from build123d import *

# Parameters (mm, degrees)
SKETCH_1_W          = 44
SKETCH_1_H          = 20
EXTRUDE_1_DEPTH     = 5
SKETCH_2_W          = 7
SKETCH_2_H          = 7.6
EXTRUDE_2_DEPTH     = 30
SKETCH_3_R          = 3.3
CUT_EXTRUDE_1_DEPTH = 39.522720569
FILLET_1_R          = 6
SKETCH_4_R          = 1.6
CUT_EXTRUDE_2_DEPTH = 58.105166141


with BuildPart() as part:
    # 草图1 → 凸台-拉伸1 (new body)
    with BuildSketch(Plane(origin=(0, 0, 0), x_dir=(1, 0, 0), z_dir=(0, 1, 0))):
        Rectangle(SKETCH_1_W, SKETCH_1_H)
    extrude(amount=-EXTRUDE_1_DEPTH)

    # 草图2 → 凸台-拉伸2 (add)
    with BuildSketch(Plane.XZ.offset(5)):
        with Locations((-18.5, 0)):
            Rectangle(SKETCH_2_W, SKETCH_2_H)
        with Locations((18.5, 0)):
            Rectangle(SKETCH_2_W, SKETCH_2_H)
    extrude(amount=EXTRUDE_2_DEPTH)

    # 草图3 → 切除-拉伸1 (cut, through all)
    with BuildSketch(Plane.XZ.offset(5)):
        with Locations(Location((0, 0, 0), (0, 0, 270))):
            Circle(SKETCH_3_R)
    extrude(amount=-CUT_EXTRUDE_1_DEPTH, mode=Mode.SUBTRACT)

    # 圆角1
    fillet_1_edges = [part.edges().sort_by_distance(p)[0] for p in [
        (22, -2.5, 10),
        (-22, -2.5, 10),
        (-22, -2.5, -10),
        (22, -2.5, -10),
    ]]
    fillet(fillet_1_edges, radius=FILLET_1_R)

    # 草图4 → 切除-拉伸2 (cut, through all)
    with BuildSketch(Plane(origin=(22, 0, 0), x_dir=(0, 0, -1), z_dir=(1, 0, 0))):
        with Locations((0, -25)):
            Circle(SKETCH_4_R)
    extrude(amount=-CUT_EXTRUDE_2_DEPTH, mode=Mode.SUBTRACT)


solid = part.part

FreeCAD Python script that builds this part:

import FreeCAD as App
import Part
import Sketcher
from FreeCAD import Vector


def edges_at(feature, points):
    """Names of the edges that pass closest to the given points."""
    edges = feature.Shape.Edges
    near = lambda p: min(range(len(edges)), key=lambda i: edges[i].distToShape(Part.Vertex(*p))[0])
    return sorted({f"Edge{near(p) + 1}" for p in points})

doc = App.newDocument("Part")
body = doc.addObject("PartDesign::Body", "Body")

sketch1 = body.newObject("Sketcher::SketchObject", "Sketch")
sketch1.AttachmentSupport = (doc.getObject("XZ_Plane"), [""])
sketch1.MapMode = "FlatFace"
sketch1.addGeometry([
    Part.LineSegment(Vector(-22, -10, 0), Vector(-22, 10, 0)),
    Part.LineSegment(Vector(-22, 10, 0), Vector(22, 10, 0)),
    Part.LineSegment(Vector(22, 10, 0), Vector(22, -10, 0)),
    Part.LineSegment(Vector(22, -10, 0), Vector(-22, -10, 0)),
], False)
sketch1.addConstraint([
    Sketcher.Constraint("Coincident", 0, 2, 1, 1),
    Sketcher.Constraint("Coincident", 1, 2, 2, 1),
    Sketcher.Constraint("Coincident", 2, 2, 3, 1),
    Sketcher.Constraint("Coincident", 3, 2, 0, 1),
    Sketcher.Constraint("Vertical", 0),
    Sketcher.Constraint("Horizontal", 1),
    Sketcher.Constraint("Vertical", 2),
    Sketcher.Constraint("Horizontal", 3),
    Sketcher.Constraint("Symmetric", 0, 2, 2, 2, -1, 1),
    Sketcher.Constraint("DistanceX", 1, 1, 1, 2, 44.0),
    Sketcher.Constraint("DistanceY", 0, 1, 0, 2, 20.0),
])
pad1 = body.newObject("PartDesign::Pad", "Pad")
pad1.Profile = sketch1
pad1.Length = 5

sketch2 = body.newObject("Sketcher::SketchObject", "Sketch001")
sketch2.AttachmentSupport = (doc.getObject("XZ_Plane"), [""])
sketch2.MapMode = "FlatFace"
sketch2.AttachmentOffset = App.Placement(Vector(0, 0, 5), App.Rotation())
sketch2.addGeometry([
    Part.LineSegment(Vector(-22, 4, 0), Vector(-22, -4, 0)),
    Part.LineSegment(Vector(-22, -4, 0), Vector(-15, -4, 0)),
    Part.LineSegment(Vector(-15, -4, 0), Vector(-15, 4, 0)),
    Part.LineSegment(Vector(-15, 4, 0), Vector(-22, 4, 0)),
    Part.LineSegment(Vector(15, 4, 0), Vector(15, -4, 0)),
    Part.LineSegment(Vector(15, -4, 0), Vector(22, -4, 0)),
    Part.LineSegment(Vector(22, -4, 0), Vector(22, 4, 0)),
    Part.LineSegment(Vector(22, 4, 0), Vector(15, 4, 0)),
], False)
sketch2.addConstraint([
    Sketcher.Constraint("Coincident", 0, 2, 1, 1),
    Sketcher.Constraint("Coincident", 1, 2, 2, 1),
    Sketcher.Constraint("Coincident", 2, 2, 3, 1),
    Sketcher.Constraint("Coincident", 3, 2, 0, 1),
    Sketcher.Constraint("Coincident", 4, 2, 5, 1),
    Sketcher.Constraint("Coincident", 5, 2, 6, 1),
    Sketcher.Constraint("Coincident", 6, 2, 7, 1),
    Sketcher.Constraint("Coincident", 7, 2, 4, 1),
    Sketcher.Constraint("Vertical", 0),
    Sketcher.Constraint("Horizontal", 1),
    Sketcher.Constraint("Vertical", 2),
    Sketcher.Constraint("Horizontal", 3),
    Sketcher.Constraint("Vertical", 4),
    Sketcher.Constraint("Horizontal", 5),
    Sketcher.Constraint("Vertical", 6),
    Sketcher.Constraint("Horizontal", 7),
    Sketcher.Constraint("Symmetric", 2, 2, 4, 2, -1, 1),
    Sketcher.Constraint("Symmetric", 0, 2, 6, 2, -1, 1),
    Sketcher.Constraint("Horizontal", 1, 2, 4, 2),
    Sketcher.Constraint("DistanceX", 1, 1, 1, 2, 7.0),
    Sketcher.Constraint("DistanceY", 0, 2, 0, 1, 7.6),
    Sketcher.Constraint("DistanceX", 0, 2, -1, 1, 22.0),
])
pad2 = body.newObject("PartDesign::Pad", "Pad001")
pad2.Profile = sketch2
pad2.Length = 30

sketch3 = body.newObject("Sketcher::SketchObject", "Sketch002")
sketch3.AttachmentSupport = (doc.getObject("XZ_Plane"), [""])
sketch3.MapMode = "FlatFace"
sketch3.AttachmentOffset = App.Placement(Vector(0, 0, 5), App.Rotation())
sketch3.addGeometry(Part.Circle(Vector(0, 0, 0), Vector(0, 0, 1), 3.3), False)
sketch3.addConstraint([
    Sketcher.Constraint("Coincident", 0, 3, -1, 1),
    Sketcher.Constraint("Diameter", 0, 6.6),
])
pocket1 = body.newObject("PartDesign::Pocket", "Pocket")
pocket1.Profile = sketch3
pocket1.Type = "ThroughAll"
doc.recompute()

fillet = body.newObject("PartDesign::Fillet", "Fillet")
fillet.Base = (pocket1, edges_at(pocket1, [
    (22, -2.5, 10),
    (-22, -2.5, 10),
    (-22, -2.5, -10),
    (22, -2.5, -10),
]))
fillet.Radius = 6

sketch4 = body.newObject("Sketcher::SketchObject", "Sketch003")
sketch4.AttachmentSupport = (doc.getObject("YZ_Plane"), [""])
sketch4.MapMode = "FlatFace"
sketch4.AttachmentOffset = App.Placement(Vector(0, 0, 22), App.Rotation())
sketch4.addGeometry(Part.Circle(Vector(-25, 0, 0), Vector(0, 0, 1), 1.6), False)
sketch4.addConstraint([
    Sketcher.Constraint("PointOnObject", 0, 3, -1),
    Sketcher.Constraint("Diameter", 0, 3.2),
    Sketcher.Constraint("DistanceX", 0, 3, -1, 1, 25.0),
])
pocket2 = body.newObject("PartDesign::Pocket", "Pocket001")
pocket2.Profile = sketch4
pocket2.Type = "ThroughAll"

doc.recompute()
